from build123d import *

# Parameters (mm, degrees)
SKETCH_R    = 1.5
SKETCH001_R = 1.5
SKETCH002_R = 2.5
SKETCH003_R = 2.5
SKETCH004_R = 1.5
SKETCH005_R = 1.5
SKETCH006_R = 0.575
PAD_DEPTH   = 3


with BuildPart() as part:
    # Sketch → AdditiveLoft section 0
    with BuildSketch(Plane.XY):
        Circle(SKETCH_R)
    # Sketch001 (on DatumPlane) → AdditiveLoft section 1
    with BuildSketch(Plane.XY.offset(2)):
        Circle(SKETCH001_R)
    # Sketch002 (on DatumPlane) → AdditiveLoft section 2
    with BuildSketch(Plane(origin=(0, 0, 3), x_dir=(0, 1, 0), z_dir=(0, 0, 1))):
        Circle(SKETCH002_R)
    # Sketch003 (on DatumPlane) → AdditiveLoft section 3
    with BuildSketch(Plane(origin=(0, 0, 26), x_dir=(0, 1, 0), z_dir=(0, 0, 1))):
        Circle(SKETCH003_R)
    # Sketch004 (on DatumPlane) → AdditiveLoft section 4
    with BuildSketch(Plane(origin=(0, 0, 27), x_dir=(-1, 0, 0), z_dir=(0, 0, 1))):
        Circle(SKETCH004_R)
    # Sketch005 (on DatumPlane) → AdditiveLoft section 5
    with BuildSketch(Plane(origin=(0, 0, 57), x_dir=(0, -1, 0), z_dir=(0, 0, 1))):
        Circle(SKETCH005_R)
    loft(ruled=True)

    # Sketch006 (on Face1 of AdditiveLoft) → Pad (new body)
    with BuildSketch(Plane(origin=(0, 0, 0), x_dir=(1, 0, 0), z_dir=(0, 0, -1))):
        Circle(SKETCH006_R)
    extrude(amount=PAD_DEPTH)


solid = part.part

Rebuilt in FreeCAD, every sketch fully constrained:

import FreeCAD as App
import Part
import Sketcher
from FreeCAD import Vector

doc = App.newDocument("Part")
body = doc.addObject("PartDesign::Body", "Body")

sketch1 = doc.addObject("Sketcher::SketchObject", "Sketch")
body.addObject(sketch1)
sketch1.AttachmentSupport = (doc.XY_Plane, [""])
sketch1.MapMode = "FlatFace"
sketch1.addGeometry(Part.Circle(Vector(0, 0, 0), Vector(0, 0, 1), 1.5), False)
sketch1.addConstraint([
    Sketcher.Constraint("Coincident", 0, 3, -1, 1),
    Sketcher.Constraint("Diameter", 0, 3.0),
])

sketch2 = doc.addObject("Sketcher::SketchObject", "Sketch001")
body.addObject(sketch2)
sketch2.AttachmentSupport = (doc.XY_Plane, [""])
sketch2.MapMode = "FlatFace"
sketch2.AttachmentOffset = App.Placement(Vector(0, 0, 2), App.Rotation())
sketch2.addGeometry(Part.Circle(Vector(0, 0, 0), Vector(0, 0, 1), 1.5), False)
sketch2.addConstraint([
    Sketcher.Constraint("Coincident", 0, 3, -1, 1),
    Sketcher.Constraint("Diameter", 0, 3.0),
])

sketch3 = doc.addObject("Sketcher::SketchObject", "Sketch002")
body.addObject(sketch3)
sketch3.AttachmentSupport = (doc.XY_Plane, [""])
sketch3.MapMode = "FlatFace"
sketch3.AttachmentOffset = App.Placement(Vector(0, 0, 3), App.Rotation())
sketch3.addGeometry(Part.Circle(Vector(0, 0, 0), Vector(0, 0, 1), 2.5), False)
sketch3.addConstraint([
    Sketcher.Constraint("Coincident", 0, 3, -1, 1),
    Sketcher.Constraint("Diameter", 0, 5.0),
])

sketch4 = doc.addObject("Sketcher::SketchObject", "Sketch003")
body.addObject(sketch4)
sketch4.AttachmentSupport = (doc.XY_Plane, [""])
sketch4.MapMode = "FlatFace"
sketch4.AttachmentOffset = App.Placement(Vector(0, 0, 26), App.Rotation())
sketch4.addGeometry(Part.Circle(Vector(0, 0, 0), Vector(0, 0, 1), 2.5), False)
sketch4.addConstraint([
    Sketcher.Constraint("Coincident", 0, 3, -1, 1),
    Sketcher.Constraint("Diameter", 0, 5.0),
])

sketch5 = doc.addObject("Sketcher::SketchObject", "Sketch004")
body.addObject(sketch5)
sketch5.AttachmentSupport = (doc.XY_Plane, [""])
sketch5.MapMode = "FlatFace"
sketch5.AttachmentOffset = App.Placement(Vector(0, 0, 27), App.Rotation())
sketch5.addGeometry(Part.Circle(Vector(0, 0, 0), Vector(0, 0, 1), 1.5), False)
sketch5.addConstraint([
    Sketcher.Constraint("Coincident", 0, 3, -1, 1),
    Sketcher.Constraint("Diameter", 0, 3.0),
])

sketch6 = doc.addObject("Sketcher::SketchObject", "Sketch005")
body.addObject(sketch6)
sketch6.AttachmentSupport = (doc.XY_Plane, [""])
sketch6.MapMode = "FlatFace"
sketch6.AttachmentOffset = App.Placement(Vector(0, 0, 57), App.Rotation())
sketch6.addGeometry(Part.Circle(Vector(0, 0, 0), Vector(0, 0, 1), 1.5), False)
sketch6.addConstraint([
    Sketcher.Constraint("Coincident", 0, 3, -1, 1),
    Sketcher.Constraint("Diameter", 0, 3.0),
])

additiveloft = doc.addObject("PartDesign::AdditiveLoft", "AdditiveLoft")
body.addObject(additiveloft)
additiveloft.Profile = sketch1
additiveloft.Sections = [sketch2, sketch3, sketch4, sketch5, sketch6]
additiveloft.Ruled = True

sketch7 = doc.addObject("Sketcher::SketchObject", "Sketch006")
body.addObject(sketch7)
sketch7.AttachmentSupport = (doc.XY_Plane, [""])
sketch7.MapMode = "FlatFace"
sketch7.addGeometry(Part.Circle(Vector(0, 0, 0), Vector(0, 0, 1), 0.6), False)
sketch7.addConstraint([
    Sketcher.Constraint("Coincident", 0, 3, -1, 1),
    Sketcher.Constraint("Diameter", 0, 1.15),
])
pad1 = doc.addObject("PartDesign::Pad", "Pad")
body.addObject(pad1)
pad1.Profile = sketch7
pad1.Length = 3
pad1.Reversed = True

doc.recompute()
